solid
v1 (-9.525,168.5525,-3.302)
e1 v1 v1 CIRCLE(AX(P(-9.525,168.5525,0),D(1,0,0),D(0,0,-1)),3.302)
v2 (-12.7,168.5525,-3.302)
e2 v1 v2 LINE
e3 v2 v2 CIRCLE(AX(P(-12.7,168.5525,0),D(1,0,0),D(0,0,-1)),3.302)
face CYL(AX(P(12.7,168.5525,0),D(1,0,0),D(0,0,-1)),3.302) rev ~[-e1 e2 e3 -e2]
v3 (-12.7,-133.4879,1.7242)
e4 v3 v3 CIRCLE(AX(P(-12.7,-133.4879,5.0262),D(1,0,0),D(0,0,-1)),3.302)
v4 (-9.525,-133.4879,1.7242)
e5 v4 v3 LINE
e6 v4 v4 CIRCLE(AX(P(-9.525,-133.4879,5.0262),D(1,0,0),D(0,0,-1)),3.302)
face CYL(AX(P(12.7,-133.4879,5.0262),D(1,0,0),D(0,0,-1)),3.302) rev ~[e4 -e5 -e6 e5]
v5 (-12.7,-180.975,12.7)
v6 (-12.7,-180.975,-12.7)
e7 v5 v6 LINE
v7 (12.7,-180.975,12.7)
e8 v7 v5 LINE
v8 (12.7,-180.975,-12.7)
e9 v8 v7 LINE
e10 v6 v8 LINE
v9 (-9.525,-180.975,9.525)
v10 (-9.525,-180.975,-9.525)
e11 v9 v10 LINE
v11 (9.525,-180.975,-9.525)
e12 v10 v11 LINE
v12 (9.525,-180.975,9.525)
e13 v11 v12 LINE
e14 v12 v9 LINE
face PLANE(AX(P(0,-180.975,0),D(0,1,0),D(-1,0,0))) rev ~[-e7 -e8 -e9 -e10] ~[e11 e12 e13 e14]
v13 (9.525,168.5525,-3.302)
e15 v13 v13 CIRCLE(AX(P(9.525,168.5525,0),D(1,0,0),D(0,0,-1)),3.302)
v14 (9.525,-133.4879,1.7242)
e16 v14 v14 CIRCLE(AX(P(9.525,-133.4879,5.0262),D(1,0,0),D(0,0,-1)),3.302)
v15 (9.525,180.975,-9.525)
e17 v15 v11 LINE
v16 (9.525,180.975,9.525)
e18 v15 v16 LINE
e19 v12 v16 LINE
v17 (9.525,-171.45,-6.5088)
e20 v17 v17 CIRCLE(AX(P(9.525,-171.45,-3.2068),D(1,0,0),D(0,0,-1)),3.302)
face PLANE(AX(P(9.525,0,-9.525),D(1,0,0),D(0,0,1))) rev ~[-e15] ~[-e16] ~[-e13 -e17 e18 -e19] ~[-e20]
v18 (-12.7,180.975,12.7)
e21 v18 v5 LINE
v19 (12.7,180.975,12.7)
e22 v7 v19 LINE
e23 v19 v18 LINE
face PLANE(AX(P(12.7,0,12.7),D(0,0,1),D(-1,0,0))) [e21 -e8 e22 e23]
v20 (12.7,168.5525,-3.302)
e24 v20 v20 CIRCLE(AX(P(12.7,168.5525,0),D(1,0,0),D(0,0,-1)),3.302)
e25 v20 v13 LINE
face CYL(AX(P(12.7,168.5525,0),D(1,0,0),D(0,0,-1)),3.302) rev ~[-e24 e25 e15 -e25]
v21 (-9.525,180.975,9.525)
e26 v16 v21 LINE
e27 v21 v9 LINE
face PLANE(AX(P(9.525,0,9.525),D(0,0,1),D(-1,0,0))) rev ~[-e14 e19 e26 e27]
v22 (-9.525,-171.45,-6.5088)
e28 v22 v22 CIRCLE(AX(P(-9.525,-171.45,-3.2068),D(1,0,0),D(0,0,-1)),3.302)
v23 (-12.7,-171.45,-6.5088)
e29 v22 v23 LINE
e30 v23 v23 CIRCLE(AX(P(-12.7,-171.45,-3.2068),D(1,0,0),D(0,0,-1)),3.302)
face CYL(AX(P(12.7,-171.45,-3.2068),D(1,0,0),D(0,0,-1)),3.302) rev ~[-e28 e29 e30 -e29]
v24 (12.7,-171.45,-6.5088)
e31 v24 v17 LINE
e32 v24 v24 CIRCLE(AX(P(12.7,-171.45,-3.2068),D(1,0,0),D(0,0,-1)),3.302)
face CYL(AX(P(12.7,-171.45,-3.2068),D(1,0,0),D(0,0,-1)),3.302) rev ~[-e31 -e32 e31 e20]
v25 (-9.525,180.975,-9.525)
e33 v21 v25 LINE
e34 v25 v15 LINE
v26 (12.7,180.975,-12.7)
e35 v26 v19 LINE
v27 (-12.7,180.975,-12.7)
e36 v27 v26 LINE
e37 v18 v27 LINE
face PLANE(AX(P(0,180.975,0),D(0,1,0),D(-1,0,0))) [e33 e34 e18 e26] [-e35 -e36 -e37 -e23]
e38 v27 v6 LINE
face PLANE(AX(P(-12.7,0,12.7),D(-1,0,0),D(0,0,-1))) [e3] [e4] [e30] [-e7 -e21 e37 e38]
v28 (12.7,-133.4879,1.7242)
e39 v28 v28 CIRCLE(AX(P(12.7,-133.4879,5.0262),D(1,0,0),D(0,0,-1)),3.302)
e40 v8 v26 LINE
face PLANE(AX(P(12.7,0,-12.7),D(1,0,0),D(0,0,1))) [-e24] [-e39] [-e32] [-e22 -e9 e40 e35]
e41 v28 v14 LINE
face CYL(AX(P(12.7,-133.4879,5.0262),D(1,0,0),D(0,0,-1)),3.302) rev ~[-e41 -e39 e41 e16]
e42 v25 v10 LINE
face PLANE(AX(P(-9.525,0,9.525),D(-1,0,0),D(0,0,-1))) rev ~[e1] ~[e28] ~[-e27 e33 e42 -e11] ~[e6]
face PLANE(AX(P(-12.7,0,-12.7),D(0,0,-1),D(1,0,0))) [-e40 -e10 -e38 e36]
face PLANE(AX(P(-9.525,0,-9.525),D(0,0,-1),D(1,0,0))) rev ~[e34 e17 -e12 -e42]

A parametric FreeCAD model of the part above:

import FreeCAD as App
import Part
import Sketcher
Q = App.Units.Quantity


def add_polygon(sketch, points):
    """Adds a closed chain of lines whose ends are joined by coincident constraints."""
    first, n = sketch.GeometryCount, len(points)
    for a, b in zip(points, points[1:] + points[:1]):
        sketch.addGeometry(Part.LineSegment(App.Vector(*a, 0), App.Vector(*b, 0)), False)
    for i in range(n):
        sketch.addConstraint(Sketcher.Constraint("Coincident", first + i, 2, first + (i + 1) % n, 1))

doc = App.newDocument("Part")
body = doc.addObject("PartDesign::Body", "Body")

# Sketch on XZ plane
sketch1 = doc.addObject("Sketcher::SketchObject", "Sketch")
body.addObject(sketch1)
sketch1.AttachmentSupport = (doc.XZ_Plane, [""])
sketch1.MapMode = "FlatFace"
add_polygon(sketch1, [(-13, 13), (13, 13), (13, -13), (-13, -13)])  # lines 0-3
add_polygon(sketch1, [(10, -10), (10, 10), (-10, 10), (-10, -10)])  # lines 4-7
sketch1.addConstraint(Sketcher.Constraint("Horizontal", 0))
sketch1.addConstraint(Sketcher.Constraint("Vertical", 1))
sketch1.addConstraint(Sketcher.Constraint("Horizontal", 2))
sketch1.addConstraint(Sketcher.Constraint("Vertical", 3))
sketch1.addConstraint(Sketcher.Constraint("Vertical", 4))
sketch1.addConstraint(Sketcher.Constraint("Horizontal", 5))
sketch1.addConstraint(Sketcher.Constraint("Vertical", 6))
sketch1.addConstraint(Sketcher.Constraint("Horizontal", 7))
sketch1.addConstraint(Sketcher.Constraint("Symmetric", 0, 2, 2, 2, -1, 1))
sketch1.addConstraint(Sketcher.Constraint("Symmetric", 4, 2, 6, 2, -1, 1))
sketch1.addConstraint(Sketcher.Constraint("Equal", 2, 1))
sketch1.addConstraint(Sketcher.Constraint("Equal", 7, 4))
sketch1.addConstraint(Sketcher.Constraint("DistanceX", 0, 1, 0, 2, Q("1 in")))
sketch1.addConstraint(Sketcher.Constraint("DistanceX", 4, 2, 0, 2, Q("0.125 in")))
pad1 = doc.addObject("PartDesign::Pad", "Pad")
body.addObject(pad1)
pad1.Profile = sketch1
pad1.Length = Q("14.25 in")
pad1.Midplane = True

# Sketch on YZ plane
sketch2 = doc.addObject("Sketcher::SketchObject", "Sketch001")
body.addObject(sketch2)
sketch2.AttachmentSupport = (doc.YZ_Plane, [""])
sketch2.MapMode = "FlatFace"
sketch2.AttachmentOffset = App.Placement(App.Vector(0, 0, 0.5 * 25.4), App.Rotation())
sketch2.addGeometry(Part.Circle(App.Vector(-133.5, 5, 0), App.Vector(0, 0, 1), 3.3), False)
sketch2.addGeometry(Part.Circle(App.Vector(-171.4, -3.2, 0), App.Vector(0, 0, 1), 3.3), False)
sketch2.addGeometry(Part.Circle(App.Vector(168.6, 0, 0), App.Vector(0, 0, 1), 3.3), False)
sketch2.addConstraint(Sketcher.Constraint("Equal", 0, 1))
sketch2.addConstraint(Sketcher.Constraint("Equal", 1, 2))
sketch2.addConstraint(Sketcher.Constraint("PointOnObject", 2, 3, -1))
sketch2.addConstraint(Sketcher.Constraint("Diameter", 0, Q("0.26 in")))
sketch2.addConstraint(Sketcher.Constraint("DistanceX", 1, 3, -1, 1, Q("6.75 in")))
sketch2.addConstraint(Sketcher.Constraint("DistanceX", 0, 3, -1, 1, Q("133.488 mm")))
sketch2.addConstraint(Sketcher.Constraint("DistanceY", -1, 1, 0, 3, Q("5.0262 mm")))
sketch2.addConstraint(Sketcher.Constraint("DistanceY", 1, 3, -1, 1, Q("3.2068 mm")))
sketch2.addConstraint(Sketcher.Constraint("DistanceX", -1, 1, 2, 3, Q("168.5525 mm")))
pocket1 = doc.addObject("PartDesign::Pocket", "Pocket")
body.addObject(pocket1)
pocket1.Profile = sketch2
pocket1.Type = "ThroughAll"

doc.recompute()
